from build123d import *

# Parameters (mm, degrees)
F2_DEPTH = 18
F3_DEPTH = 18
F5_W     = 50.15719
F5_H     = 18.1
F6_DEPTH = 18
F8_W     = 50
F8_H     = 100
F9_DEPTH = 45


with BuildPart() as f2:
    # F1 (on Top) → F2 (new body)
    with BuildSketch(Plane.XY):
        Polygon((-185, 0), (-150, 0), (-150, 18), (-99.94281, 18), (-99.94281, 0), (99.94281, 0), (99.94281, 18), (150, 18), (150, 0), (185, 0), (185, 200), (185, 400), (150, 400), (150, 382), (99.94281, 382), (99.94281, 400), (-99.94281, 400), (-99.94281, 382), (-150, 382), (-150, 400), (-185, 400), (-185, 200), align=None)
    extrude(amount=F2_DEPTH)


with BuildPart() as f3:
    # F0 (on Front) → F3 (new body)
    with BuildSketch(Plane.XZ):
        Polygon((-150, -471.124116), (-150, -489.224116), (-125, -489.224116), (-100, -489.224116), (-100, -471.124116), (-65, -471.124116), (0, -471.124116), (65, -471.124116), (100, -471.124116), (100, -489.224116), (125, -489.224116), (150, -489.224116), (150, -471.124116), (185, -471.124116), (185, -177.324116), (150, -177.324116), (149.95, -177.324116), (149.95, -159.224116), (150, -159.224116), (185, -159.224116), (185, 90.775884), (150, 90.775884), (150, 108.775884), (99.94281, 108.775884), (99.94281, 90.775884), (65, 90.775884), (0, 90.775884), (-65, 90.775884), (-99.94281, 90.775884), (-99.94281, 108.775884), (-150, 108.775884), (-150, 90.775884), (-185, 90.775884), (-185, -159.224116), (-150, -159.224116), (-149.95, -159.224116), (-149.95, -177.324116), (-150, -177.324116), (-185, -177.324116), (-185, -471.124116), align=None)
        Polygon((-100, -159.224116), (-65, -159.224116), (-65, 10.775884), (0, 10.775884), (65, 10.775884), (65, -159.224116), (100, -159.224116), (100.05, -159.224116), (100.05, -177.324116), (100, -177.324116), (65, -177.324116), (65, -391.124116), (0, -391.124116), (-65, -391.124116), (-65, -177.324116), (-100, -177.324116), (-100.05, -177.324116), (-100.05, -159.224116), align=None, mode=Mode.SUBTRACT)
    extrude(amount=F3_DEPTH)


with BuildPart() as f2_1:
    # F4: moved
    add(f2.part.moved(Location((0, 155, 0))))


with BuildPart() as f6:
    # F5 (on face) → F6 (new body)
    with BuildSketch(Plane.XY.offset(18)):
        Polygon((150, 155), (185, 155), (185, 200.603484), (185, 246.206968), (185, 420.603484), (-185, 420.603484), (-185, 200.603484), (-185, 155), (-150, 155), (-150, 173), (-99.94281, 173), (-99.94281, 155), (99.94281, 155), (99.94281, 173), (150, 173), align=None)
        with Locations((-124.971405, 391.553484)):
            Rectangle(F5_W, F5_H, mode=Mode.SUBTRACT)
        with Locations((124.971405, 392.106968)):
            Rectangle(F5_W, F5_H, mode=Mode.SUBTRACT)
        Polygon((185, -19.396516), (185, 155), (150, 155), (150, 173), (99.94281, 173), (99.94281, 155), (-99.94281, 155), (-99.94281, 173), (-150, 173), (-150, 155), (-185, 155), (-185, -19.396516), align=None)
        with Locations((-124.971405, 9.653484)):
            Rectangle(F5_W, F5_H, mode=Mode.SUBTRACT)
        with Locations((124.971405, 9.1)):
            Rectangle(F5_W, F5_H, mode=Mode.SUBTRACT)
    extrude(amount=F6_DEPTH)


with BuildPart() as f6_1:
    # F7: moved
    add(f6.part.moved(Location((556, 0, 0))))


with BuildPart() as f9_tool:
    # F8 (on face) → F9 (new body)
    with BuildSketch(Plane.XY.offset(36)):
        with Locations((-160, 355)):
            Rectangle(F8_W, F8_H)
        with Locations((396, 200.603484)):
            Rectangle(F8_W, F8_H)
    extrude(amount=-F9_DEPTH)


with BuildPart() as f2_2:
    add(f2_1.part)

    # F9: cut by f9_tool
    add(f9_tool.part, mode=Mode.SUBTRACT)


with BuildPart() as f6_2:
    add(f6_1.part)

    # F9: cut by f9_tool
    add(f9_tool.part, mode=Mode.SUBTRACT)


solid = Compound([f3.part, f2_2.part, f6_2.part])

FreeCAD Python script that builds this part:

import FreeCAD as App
import Part
import Sketcher
from FreeCAD import Vector

doc = App.newDocument("Part")
params = doc.addObject("Spreadsheet::Sheet", "Params")
for row, (alias, value) in enumerate([
    ("sketch1_width", "35 mm"),
    ("sketch1_height", "18 mm"),
    ("sketch1_height2", "400 mm"),
    ("pad1_length", "18 mm"),
    ("sketch2_width", "50 mm"),
    ("sketch2_width2", "200 mm"),
    ("sketch2_width3", "35 mm"),
    ("sketch2_width4", "130 mm"),
    ("sketch2_height", "250 mm"),
    ("pad2_length", "18 mm"),
    ("sketch3_width", "370 mm"),
    ("sketch3_height", "440 mm"),
    ("sketch3_height2", "18.1 mm"),
    ("pad3_length", "18 mm"),
    ("sketch4_width", "50 mm"),
    ("sketch4_height", "100 mm"),
    ("pad4_length", "45 mm"),
], start=1):
    params.set(f"A{row}", alias)
    params.set(f"B{row}", "=" + value)
    params.setAlias(f"B{row}", alias)

body = doc.addObject("PartDesign::Body", "Body")

sketch1 = doc.addObject("Sketcher::SketchObject", "Sketch")
body.addObject(sketch1)
sketch1.AttachmentSupport = (doc.XY_Plane, [""])
sketch1.MapMode = "FlatFace"
sketch1.addGeometry([
    Part.LineSegment(Vector(-185, 0, 0), Vector(-150, 0, 0)),
    Part.LineSegment(Vector(-150, 0, 0), Vector(-150, 18, 0)),
    Part.LineSegment(Vector(-150, 18, 0), Vector(-100, 18, 0)),
    Part.LineSegment(Vector(-100, 18, 0), Vector(-100, 0, 0)),
    Part.LineSegment(Vector(-100, 0, 0), Vector(100, 0, 0)),
    Part.LineSegment(Vector(100, 0, 0), Vector(100, 18, 0)),
    Part.LineSegment(Vector(100, 18, 0), Vector(150, 18, 0)),
    Part.LineSegment(Vector(150, 18, 0), Vector(150, 0, 0)),
    Part.LineSegment(Vector(150, 0, 0), Vector(185, 0, 0)),
    Part.LineSegment(Vector(185, 0, 0), Vector(185, 400, 0)),
    Part.LineSegment(Vector(185, 400, 0), Vector(150, 400, 0)),
    Part.LineSegment(Vector(150, 400, 0), Vector(150, 382, 0)),
    Part.LineSegment(Vector(150, 382, 0), Vector(100, 382, 0)),
    Part.LineSegment(Vector(100, 382, 0), Vector(100, 400, 0)),
    Part.LineSegment(Vector(100, 400, 0), Vector(-100, 400, 0)),
    Part.LineSegment(Vector(-100, 400, 0), Vector(-100, 382, 0)),
    Part.LineSegment(Vector(-100, 382, 0), Vector(-150, 382, 0)),
    Part.LineSegment(Vector(-150, 382, 0), Vector(-150, 400, 0)),
    Part.LineSegment(Vector(-150, 400, 0), Vector(-185, 400, 0)),
    Part.LineSegment(Vector(-185, 400, 0), Vector(-185, 0, 0)),
], False)
sketch1.addConstraint([
    Sketcher.Constraint("Coincident", 0, 2, 1, 1),
    Sketcher.Constraint("Coincident", 1, 2, 2, 1),
    Sketcher.Constraint("Coincident", 2, 2, 3, 1),
    Sketcher.Constraint("Coincident", 3, 2, 4, 1),
    Sketcher.Constraint("Coincident", 4, 2, 5, 1),
    Sketcher.Constraint("Coincident", 5, 2, 6, 1),
    Sketcher.Constraint("Coincident", 6, 2, 7, 1),
    Sketcher.Constraint("Coincident", 7, 2, 8, 1),
    Sketcher.Constraint("Coincident", 8, 2, 9, 1),
    Sketcher.Constraint("Coincident", 9, 2, 10, 1),
    Sketcher.Constraint("Coincident", 10, 2, 11, 1),
    Sketcher.Constraint("Coincident", 11, 2, 12, 1),
    Sketcher.Constraint("Coincident", 12, 2, 13, 1),
    Sketcher.Constraint("Coincident", 13, 2, 14, 1),
    Sketcher.Constraint("Coincident", 14, 2, 15, 1),
    Sketcher.Constraint("Coincident", 15, 2, 16, 1),
    Sketcher.Constraint("Coincident", 16, 2, 17, 1),
    Sketcher.Constraint("Coincident", 17, 2, 18, 1),
    Sketcher.Constraint("Coincident", 18, 2, 19, 1),
    Sketcher.Constraint("Coincident", 19, 2, 0, 1),
    Sketcher.Constraint("Horizontal", 0),
    Sketcher.Constraint("Vertical", 1),
    Sketcher.Constraint("Horizontal", 2),
    Sketcher.Constraint("Vertical", 3),
    Sketcher.Constraint("Horizontal", 4),
    Sketcher.Constraint("Vertical", 5),
    Sketcher.Constraint("Horizontal", 6),
    Sketcher.Constraint("Vertical", 7),
    Sketcher.Constraint("Horizontal", 8),
    Sketcher.Constraint("Vertical", 9),
    Sketcher.Constraint("Horizontal", 10),
    Sketcher.Constraint("Vertical", 11),
    Sketcher.Constraint("Horizontal", 12),
    Sketcher.Constraint("Vertical", 13),
    Sketcher.Constraint("Horizontal", 14),
    Sketcher.Constraint("Vertical", 15),
    Sketcher.Constraint("Horizontal", 16),
    Sketcher.Constraint("Vertical", 17),
    Sketcher.Constraint("Horizontal", 18),
    Sketcher.Constraint("Vertical", 19),
    Sketcher.Constraint("Symmetric", 3, 2, 4, 2, -1, 1),
    Sketcher.Constraint("Symmetric", 0, 2, 7, 2, -1, 1),
    Sketcher.Constraint("Symmetric", 12, 2, 15, 2, -2),
    Sketcher.Constraint("Symmetric", 10, 2, 17, 2, -2),
    Sketcher.Constraint("Symmetric", 8, 2, 19, 2, -2),
    Sketcher.Constraint("Horizontal", 2, 2, 5, 2),
    Sketcher.Constraint("Horizontal", 10, 2, 13, 2),
    Sketcher.Constraint("Vertical", 7, 2, 10, 2),
    Sketcher.Constraint("Vertical", 5, 2, 12, 2),
    Sketcher.Constraint("Equal", 7, 11),
    Sketcher.Constraint("DistanceX", 0, 1, 0, 2, 35.0),
    Sketcher.Constraint("DistanceY", 1, 1, 1, 2, 18.0),
    Sketcher.Constraint("DistanceY", 9, 1, 9, 2, 400.0),
    Sketcher.Constraint("DistanceX", 0, 2, -1, 1, 150.0),
    Sketcher.Constraint("DistanceX", 2, 1, 2, 2, 50.05719),
])
sketch1.setExpression("Constraints[50]", "Params.sketch1_width")
sketch1.setExpression("Constraints[51]", "Params.sketch1_height")
sketch1.setExpression("Constraints[52]", "Params.sketch1_height2")
pad1 = doc.addObject("PartDesign::Pad", "Pad")
body.addObject(pad1)
pad1.Profile = sketch1
pad1.setExpression("Length", "Params.pad1_length")
body2 = doc.addObject("PartDesign::Body", "Body001")

sketch2 = doc.addObject("Sketcher::SketchObject", "Sketch001")
body2.addObject(sketch2)
sketch2.AttachmentSupport = (doc.getObject("XZ_Plane001"), [""])
sketch2.MapMode = "FlatFace"
sketch2.addGeometry([
    Part.LineSegment(Vector(-150, -471, 0), Vector(-150, -489, 0)),
    Part.LineSegment(Vector(-150, -489, 0), Vector(-100, -489, 0)),
    Part.LineSegment(Vector(-100, -489, 0), Vector(-100, -471, 0)),
    Part.LineSegment(Vector(-100, -471, 0), Vector(100, -471, 0)),
    Part.LineSegment(Vector(100, -471, 0), Vector(100, -489, 0)),
    Part.LineSegment(Vector(100, -489, 0), Vector(150, -489, 0)),
    Part.LineSegment(Vector(150, -489, 0), Vector(150, -471, 0)),
    Part.LineSegment(Vector(150, -471, 0), Vector(185, -471, 0)),
    Part.LineSegment(Vector(185, -471, 0), Vector(185, -177, 0)),
    Part.LineSegment(Vector(185, -177, 0), Vector(150, -177, 0)),
    Part.LineSegment(Vector(150, -177, 0), Vector(150, -159, 0)),
    Part.LineSegment(Vector(150, -159, 0), Vector(185, -159, 0)),
    Part.LineSegment(Vector(185, -159, 0), Vector(185, 91, 0)),
    Part.LineSegment(Vector(185, 91, 0), Vector(150, 91, 0)),
    Part.LineSegment(Vector(150, 91, 0), Vector(150, 109, 0)),
    Part.LineSegment(Vector(150, 109, 0), Vector(100, 109, 0)),
    Part.LineSegment(Vector(100, 109, 0), Vector(100, 91, 0)),
    Part.LineSegment(Vector(100, 91, 0), Vector(-100, 91, 0)),
    Part.LineSegment(Vector(-100, 91, 0), Vector(-100, 109, 0)),
    Part.LineSegment(Vector(-100, 109, 0), Vector(-150, 109, 0)),
    Part.LineSegment(Vector(-150, 109, 0), Vector(-150, 91, 0)),
    Part.LineSegment(Vector(-150, 91, 0), Vector(-185, 91, 0)),
    Part.LineSegment(Vector(-185, 91, 0), Vector(-185, -159, 0)),
    Part.LineSegment(Vector(-185, -159, 0), Vector(-150, -159, 0)),
    Part.LineSegment(Vector(-150, -159, 0), Vector(-150, -177, 0)),
    Part.LineSegment(Vector(-150, -177, 0), Vector(-185, -177, 0)),
    Part.LineSegment(Vector(-185, -177, 0), Vector(-185, -471, 0)),
    Part.LineSegment(Vector(-185, -471, 0), Vector(-150, -471, 0)),
    Part.LineSegment(Vector(-100, -159, 0), Vector(-65, -159, 0)),
    Part.LineSegment(Vector(-65, -159, 0), Vector(-65, 11, 0)),
    Part.LineSegment(Vector(-65, 11, 0), Vector(65, 11, 0)),
    Part.LineSegment(Vector(65, 11, 0), Vector(65, -159, 0)),
    Part.LineSegment(Vector(65, -159, 0), Vector(100, -159, 0)),
    Part.LineSegment(Vector(100, -159, 0), Vector(100, -177, 0)),
    Part.LineSegment(Vector(100, -177, 0), Vector(65, -177, 0)),
    Part.LineSegment(Vector(65, -177, 0), Vector(65, -391, 0)),
    Part.LineSegment(Vector(65, -391, 0), Vector(-65, -391, 0)),
    Part.LineSegment(Vector(-65, -391, 0), Vector(-65, -177, 0)),
    Part.LineSegment(Vector(-65, -177, 0), Vector(-100, -177, 0)),
    Part.LineSegment(Vector(-100, -177, 0), Vector(-100, -159, 0)),
], False)
sketch2.addConstraint([
    Sketcher.Constraint("Coincident", 0, 2, 1, 1),
    Sketcher.Constraint("Coincident", 1, 2, 2, 1),
    Sketcher.Constraint("Coincident", 2, 2, 3, 1),
    Sketcher.Constraint("Coincident", 3, 2, 4, 1),
    Sketcher.Constraint("Coincident", 4, 2, 5, 1),
    Sketcher.Constraint("Coincident", 5, 2, 6, 1),
    Sketcher.Constraint("Coincident", 6, 2, 7, 1),
    Sketcher.Constraint("Coincident", 7, 2, 8, 1),
    Sketcher.Constraint("Coincident", 8, 2, 9, 1),
    Sketcher.Constraint("Coincident", 9, 2, 10, 1),
    Sketcher.Constraint("Coincident", 10, 2, 11, 1),
    Sketcher.Constraint("Coincident", 11, 2, 12, 1),
    Sketcher.Constraint("Coincident", 12, 2, 13, 1),
    Sketcher.Constraint("Coincident", 13, 2, 14, 1),
    Sketcher.Constraint("Coincident", 14, 2, 15, 1),
    Sketcher.Constraint("Coincident", 15, 2, 16, 1),
    Sketcher.Constraint("Coincident", 16, 2, 17, 1),
    Sketcher.Constraint("Coincident", 17, 2, 18, 1),
    Sketcher.Constraint("Coincident", 18, 2, 19, 1),
    Sketcher.Constraint("Coincident", 19, 2, 20, 1),
    Sketcher.Constraint("Coincident", 20, 2, 21, 1),
    Sketcher.Constraint("Coincident", 21, 2, 22, 1),
    Sketcher.Constraint("Coincident", 22, 2, 23, 1),
    Sketcher.Constraint("Coincident", 23, 2, 24, 1),
    Sketcher.Constraint("Coincident", 24, 2, 25, 1),
    Sketcher.Constraint("Coincident", 25, 2, 26, 1),
    Sketcher.Constraint("Coincident", 26, 2, 27, 1),
    Sketcher.Constraint("Coincident", 27, 2, 0, 1),
    Sketcher.Constraint("Coincident", 28, 2, 29, 1),
    Sketcher.Constraint("Coincident", 29, 2, 30, 1),
    Sketcher.Constraint("Coincident", 30, 2, 31, 1),
    Sketcher.Constraint("Coincident", 31, 2, 32, 1),
    Sketcher.Constraint("Coincident", 32, 2, 33, 1),
    Sketcher.Constraint("Coincident", 33, 2, 34, 1),
    Sketcher.Constraint("Coincident", 34, 2, 35, 1),
    Sketcher.Constraint("Coincident", 35, 2, 36, 1),
    Sketcher.Constraint("Coincident", 36, 2, 37, 1),
    Sketcher.Constraint("Coincident", 37, 2, 38, 1),
    Sketcher.Constraint("Coincident", 38, 2, 39, 1),
    Sketcher.Constraint("Coincident", 39, 2, 28, 1),
    Sketcher.Constraint("Vertical", 0),
    Sketcher.Constraint("Horizontal", 1),
    Sketcher.Constraint("Vertical", 2),
    Sketcher.Constraint("Horizontal", 3),
    Sketcher.Constraint("Vertical", 4),
    Sketcher.Constraint("Horizontal", 5),
    Sketcher.Constraint("Vertical", 6),
    Sketcher.Constraint("Horizontal", 7),
    Sketcher.Constraint("Vertical", 8),
    Sketcher.Constraint("Horizontal", 9),
    Sketcher.Constraint("Vertical", 10),
    Sketcher.Constraint("Horizontal", 11),
    Sketcher.Constraint("Vertical", 12),
    Sketcher.Constraint("Horizontal", 13),
    Sketcher.Constraint("Vertical", 14),
    Sketcher.Constraint("Horizontal", 15),
    Sketcher.Constraint("Vertical", 16),
    Sketcher.Constraint("Horizontal", 17),
    Sketcher.Constraint("Vertical", 18),
    Sketcher.Constraint("Horizontal", 19),
    Sketcher.Constraint("Vertical", 20),
    Sketcher.Constraint("Horizontal", 21),
    Sketcher.Constraint("Vertical", 22),
    Sketcher.Constraint("Horizontal", 23),
    Sketcher.Constraint("Vertical", 24),
    Sketcher.Constraint("Horizontal", 25),
    Sketcher.Constraint("Vertical", 26),
    Sketcher.Constraint("Horizontal", 27),
    Sketcher.Constraint("Horizontal", 28),
    Sketcher.Constraint("Vertical", 29),
    Sketcher.Constraint("Horizontal", 30),
    Sketcher.Constraint("Vertical", 31),
    Sketcher.Constraint("Horizontal", 32),
    Sketcher.Constraint("Vertical", 33),
    Sketcher.Constraint("Horizontal", 34),
    Sketcher.Constraint("Vertical", 35),
    Sketcher.Constraint("Horizontal", 36),
    Sketcher.Constraint("Vertical", 37),
    Sketcher.Constraint("Horizontal", 38),
    Sketcher.Constraint("Vertical", 39),
    Sketcher.Constraint("Symmetric", 1, 2, 4, 2, -2),
    Sketcher.Constraint("Symmetric", 15, 2, 18, 2, -2),
    Sketcher.Constraint("Symmetric", 13, 2, 20, 2, -2),
    Sketcher.Constraint("Symmetric", 11, 2, 22, 2, -2),
    Sketcher.Constraint("Symmetric", 9, 2, 24, 2, -2),
    Sketcher.Constraint("Symmetric", 7, 2, 26, 2, -2),
    Sketcher.Constraint("Symmetric", 28, 2, 31, 2, -2),
    Sketcher.Constraint("Symmetric", 34, 2, 37, 2, -2),
    Sketcher.Constraint("Horizontal", 3, 2, 6, 2),
    Sketcher.Constraint("Horizontal", 13, 2, 16, 2),
    Sketcher.Constraint("Horizontal", 23, 2, 28, 2),
    Sketcher.Constraint("Horizontal", 25, 2, 33, 2),
    Sketcher.Constraint("Vertical", 8, 2, 11, 2),
    Sketcher.Constraint("Vertical", 6, 2, 13, 2),
    Sketcher.Constraint("Vertical", 0, 2, 19, 2),
    Sketcher.Constraint("Vertical", 31, 2, 34, 2),
    Sketcher.Constraint("Equal", 25, 28),
    Sketcher.Constraint("Equal", 28, 32),
    Sketcher.Constraint("Equal", 6, 10),
    Sketcher.Constraint("DistanceX", 1, 1, 1, 2, 50.0),
    Sketcher.Constraint("DistanceX", 3, 1, 3, 2, 200.0),
    Sketcher.Constraint("DistanceX", 7, 1, 7, 2, 35.0),
    Sketcher.Constraint("DistanceX", 30, 1, 30, 2, 130.0),
    Sketcher.Constraint("DistanceY", 12, 1, 12, 2, 250.0),
    Sketcher.Constraint("DistanceY", 14, 1, 14, 2, 18.0),
    Sketcher.Constraint("DistanceY", 29, 1, 29, 2, 170.0),
    Sketcher.Constraint("DistanceY", 0, 2, 0, 1, 18.1),
    Sketcher.Constraint("DistanceY", 8, 1, 8, 2, 293.8),
    Sketcher.Constraint("DistanceY", 35, 2, 35, 1, 213.8),
    Sketcher.Constraint("DistanceX", 9, 2, 9, 1, 35.05),
    Sketcher.Constraint("DistanceX", 15, 2, 15, 1, 50.05719),
    Sketcher.Constraint("DistanceY", 0, 2, -1, 1, 489.224116),
])
sketch2.setExpression("Constraints[99]", "Params.sketch2_width")
sketch2.setExpression("Constraints[100]", "Params.sketch2_width2")
sketch2.setExpression("Constraints[101]", "Params.sketch2_width3")
sketch2.setExpression("Constraints[102]", "Params.sketch2_width4")
sketch2.setExpression("Constraints[103]", "Params.sketch2_height")
pad2 = doc.addObject("PartDesign::Pad", "Pad001")
body2.addObject(pad2)
pad2.Profile = sketch2
pad2.setExpression("Length", "Params.pad2_length")
body3 = doc.addObject("PartDesign::Body", "Body002")
doc.recompute()

body.Placement = App.Placement(Vector(0, 155, 0), App.Rotation(Vector(0, 0, 1), 0))
boolean = doc.addObject("PartDesign::Boolean", "Boolean")
body3.addObject(boolean)
boolean.Type = "Fuse"
boolean.addObjects([body])
body4 = doc.addObject("PartDesign::Body", "Body003")

sketch3 = doc.addObject("Sketcher::SketchObject", "Sketch002")
body4.addObject(sketch3)
sketch3.AttachmentSupport = (doc.getObject("XY_Plane003"), [""])
sketch3.MapMode = "FlatFace"
sketch3.AttachmentOffset = App.Placement(Vector(0, 0, 18), App.Rotation())
sketch3.addGeometry([
    Part.LineSegment(Vector(185, 421, 0), Vector(-185, 421, 0)),
    Part.LineSegment(Vector(-185, 421, 0), Vector(-185, -19, 0)),
    Part.LineSegment(Vector(-185, -19, 0), Vector(185, -19, 0)),
    Part.LineSegment(Vector(185, -19, 0), Vector(185, 421, 0)),
    Part.LineSegment(Vector(-100, 1, 0), Vector(-150, 1, 0)),
    Part.LineSegment(Vector(-150, 1, 0), Vector(-150, 19, 0)),
    Part.LineSegment(Vector(-150, 19, 0), Vector(-100, 19, 0)),
    Part.LineSegment(Vector(-100, 19, 0), Vector(-100, 1, 0)),
    Part.LineSegment(Vector(150, 0, 0), Vector(100, 0, 0)),
    Part.LineSegment(Vector(100, 0, 0), Vector(100, 18, 0)),
    Part.LineSegment(Vector(100, 18, 0), Vector(150, 18, 0)),
    Part.LineSegment(Vector(150, 18, 0), Vector(150, 0, 0)),
    Part.LineSegment(Vector(-100, 383, 0), Vector(-150, 383, 0)),
    Part.LineSegment(Vector(-150, 383, 0), Vector(-150, 401, 0)),
    Part.LineSegment(Vector(-150, 401, 0), Vector(-100, 401, 0)),
    Part.LineSegment(Vector(-100, 401, 0), Vector(-100, 383, 0)),
    Part.LineSegment(Vector(150, 383, 0), Vector(100, 383, 0)),
    Part.LineSegment(Vector(100, 383, 0), Vector(100, 401, 0)),
    Part.LineSegment(Vector(100, 401, 0), Vector(150, 401, 0)),
    Part.LineSegment(Vector(150, 401, 0), Vector(150, 383, 0)),
], False)
sketch3.addConstraint([
    Sketcher.Constraint("Coincident", 0, 2, 1, 1),
    Sketcher.Constraint("Coincident", 1, 2, 2, 1),
    Sketcher.Constraint("Coincident", 2, 2, 3, 1),
    Sketcher.Constraint("Coincident", 3, 2, 0, 1),
    Sketcher.Constraint("Coincident", 4, 2, 5, 1),
    Sketcher.Constraint("Coincident", 5, 2, 6, 1),
    Sketcher.Constraint("Coincident", 6, 2, 7, 1),
    Sketcher.Constraint("Coincident", 7, 2, 4, 1),
    Sketcher.Constraint("Coincident", 8, 2, 9, 1),
    Sketcher.Constraint("Coincident", 9, 2, 10, 1),
    Sketcher.Constraint("Coincident", 10, 2, 11, 1),
    Sketcher.Constraint("Coincident", 11, 2, 8, 1),
    Sketcher.Constraint("Coincident", 12, 2, 13, 1),
    Sketcher.Constraint("Coincident", 13, 2, 14, 1),
    Sketcher.Constraint("Coincident", 14, 2, 15, 1),
    Sketcher.Constraint("Coincident", 15, 2, 12, 1),
    Sketcher.Constraint("Coincident", 16, 2, 17, 1),
    Sketcher.Constraint("Coincident", 17, 2, 18, 1),
    Sketcher.Constraint("Coincident", 18, 2, 19, 1),
    Sketcher.Constraint("Coincident", 19, 2, 16, 1),
    Sketcher.Constraint("Horizontal", 0),
    Sketcher.Constraint("Vertical", 1),
    Sketcher.Constraint("Horizontal", 2),
    Sketcher.Constraint("Vertical", 3),
    Sketcher.Constraint("Horizontal", 4),
    Sketcher.Constraint("Vertical", 5),
    Sketcher.Constraint("Horizontal", 6),
    Sketcher.Constraint("Vertical", 7),
    Sketcher.Constraint("Horizontal", 8),
    Sketcher.Constraint("Vertical", 9),
    Sketcher.Constraint("Horizontal", 10),
    Sketcher.Constraint("Vertical", 11),
    Sketcher.Constraint("Horizontal", 12),
    Sketcher.Constraint("Vertical", 13),
    Sketcher.Constraint("Horizontal", 14),
    Sketcher.Constraint("Vertical", 15),
    Sketcher.Constraint("Horizontal", 16),
    Sketcher.Constraint("Vertical", 17),
    Sketcher.Constraint("Horizontal", 18),
    Sketcher.Constraint("Vertical", 19),
    Sketcher.Constraint("Vertical", 5, 2, 12, 2),
    Sketcher.Constraint("Vertical", 7, 2, 14, 2),
    Sketcher.Constraint("Vertical", 9, 2, 16, 2),
    Sketcher.Constraint("Vertical", 11, 2, 18, 2),
    Sketcher.Constraint("Equal", 6, 8),
    Sketcher.Constraint("Equal", 7, 9),
    Sketcher.Constraint("Equal", 11, 13),
    Sketcher.Constraint("Equal", 15, 17),
    Sketcher.Constraint("DistanceX", 0, 2, 0, 1, 370.0),
    Sketcher.Constraint("DistanceY", 1, 2, 1, 1, 440.0),
    Sketcher.Constraint("DistanceY", 5, 1, 5, 2, 18.1),
    Sketcher.Constraint("DistanceX", 0, 2, -1, 1, 185.0),
    Sketcher.Constraint("DistanceY", 1, 2, 4, 2, 20.0),
    Sketcher.Constraint("DistanceY", 13, 2, 0, 2, 20.0),
    Sketcher.Constraint("DistanceX", 4, 2, -1, 1, 150.05),
    Sketcher.Constraint("DistanceY", -1, 1, 8, 2, 0.05),
    Sketcher.Constraint("DistanceX", -1, 1, 10, 2, 150.05),
    Sketcher.Constraint("DistanceX", 4, 2, 4, 1, 50.15719),
    Sketcher.Constraint("DistanceY", -1, 1, 16, 2, 383.056968),
    Sketcher.Constraint("DistanceY", -1, 1, 0, 2, 420.603484),
])
sketch3.setExpression("Constraints[48]", "Params.sketch3_width")
sketch3.setExpression("Constraints[49]", "Params.sketch3_height")
sketch3.setExpression("Constraints[50]", "Params.sketch3_height2")
pad3 = doc.addObject("PartDesign::Pad", "Pad002")
body4.addObject(pad3)
pad3.Profile = sketch3
pad3.setExpression("Length", "Params.pad3_length")
body5 = doc.addObject("PartDesign::Body", "Body004")
doc.recompute()

body4.Placement = App.Placement(Vector(556, 0, 0), App.Rotation(Vector(0, 0, 1), 0))
boolean2 = doc.addObject("PartDesign::Boolean", "Boolean001")
body5.addObject(boolean2)
boolean2.Type = "Fuse"
boolean2.addObjects([body4])
body6 = doc.addObject("PartDesign::Body", "Body005")
body6.AllowCompound = True

sketch4 = doc.addObject("Sketcher::SketchObject", "Sketch003")
body6.addObject(sketch4)
sketch4.AttachmentSupport = (doc.getObject("XY_Plane005"), [""])
sketch4.MapMode = "FlatFace"
sketch4.AttachmentOffset = App.Placement(Vector(0, 0, 36), App.Rotation())
sketch4.addGeometry([
    Part.LineSegment(Vector(-185, 405, 0), Vector(-185, 305, 0)),
    Part.LineSegment(Vector(-185, 305, 0), Vector(-135, 305, 0)),
    Part.LineSegment(Vector(-135, 305, 0), Vector(-135, 405, 0)),
    Part.LineSegment(Vector(-135, 405, 0), Vector(-185, 405, 0)),
    Part.LineSegment(Vector(371, 251, 0), Vector(371, 151, 0)),
    Part.LineSegment(Vector(371, 151, 0), Vector(421, 151, 0)),
    Part.LineSegment(Vector(421, 151, 0), Vector(421, 251, 0)),
    Part.LineSegment(Vector(421, 251, 0), Vector(371, 251, 0)),
], False)
sketch4.addConstraint([
    Sketcher.Constraint("Coincident", 0, 2, 1, 1),
    Sketcher.Constraint("Coincident", 1, 2, 2, 1),
    Sketcher.Constraint("Coincident", 2, 2, 3, 1),
    Sketcher.Constraint("Coincident", 3, 2, 0, 1),
    Sketcher.Constraint("Coincident", 4, 2, 5, 1),
    Sketcher.Constraint("Coincident", 5, 2, 6, 1),
    Sketcher.Constraint("Coincident", 6, 2, 7, 1),
    Sketcher.Constraint("Coincident", 7, 2, 4, 1),
    Sketcher.Constraint("Vertical", 0),
    Sketcher.Constraint("Horizontal", 1),
    Sketcher.Constraint("Vertical", 2),
    Sketcher.Constraint("Horizontal", 3),
    Sketcher.Constraint("Vertical", 4),
    Sketcher.Constraint("Horizontal", 5),
    Sketcher.Constraint("Vertical", 6),
    Sketcher.Constraint("Horizontal", 7),
    Sketcher.Constraint("Equal", 3, 5),
    Sketcher.Constraint("Equal", 2, 4),
    Sketcher.Constraint("DistanceX", 1, 1, 1, 2, 50.0),
    Sketcher.Constraint("DistanceY", 0, 2, 0, 1, 100.0),
    Sketcher.Constraint("DistanceX", 0, 2, -1, 1, 185.0),
    Sketcher.Constraint("DistanceY", -1, 1, 0, 2, 305.0),
    Sketcher.Constraint("DistanceX", -1, 1, 4, 2, 371.0),
    Sketcher.Constraint("DistanceY", -1, 1, 4, 2, 150.603484),
])
sketch4.setExpression("Constraints[18]", "Params.sketch4_width")
sketch4.setExpression("Constraints[19]", "Params.sketch4_height")
pad4 = doc.addObject("PartDesign::Pad", "Pad003")
body6.addObject(pad4)
pad4.Profile = sketch4
pad4.setExpression("Length", "Params.pad4_length")
pad4.Reversed = True
doc.recompute()

body7 = doc.addObject("PartDesign::Body", "Body006")
body7.BaseFeature = body6
boolean3 = doc.addObject("PartDesign::Boolean", "Boolean002")
body3.addObject(boolean3)
boolean3.Type = "Cut"
boolean3.addObjects([body7])
doc.recompute()

boolean4 = doc.addObject("PartDesign::Boolean", "Boolean003")
body5.addObject(boolean4)
boolean4.Type = "Cut"
boolean4.addObjects([body6])

doc.recompute()
